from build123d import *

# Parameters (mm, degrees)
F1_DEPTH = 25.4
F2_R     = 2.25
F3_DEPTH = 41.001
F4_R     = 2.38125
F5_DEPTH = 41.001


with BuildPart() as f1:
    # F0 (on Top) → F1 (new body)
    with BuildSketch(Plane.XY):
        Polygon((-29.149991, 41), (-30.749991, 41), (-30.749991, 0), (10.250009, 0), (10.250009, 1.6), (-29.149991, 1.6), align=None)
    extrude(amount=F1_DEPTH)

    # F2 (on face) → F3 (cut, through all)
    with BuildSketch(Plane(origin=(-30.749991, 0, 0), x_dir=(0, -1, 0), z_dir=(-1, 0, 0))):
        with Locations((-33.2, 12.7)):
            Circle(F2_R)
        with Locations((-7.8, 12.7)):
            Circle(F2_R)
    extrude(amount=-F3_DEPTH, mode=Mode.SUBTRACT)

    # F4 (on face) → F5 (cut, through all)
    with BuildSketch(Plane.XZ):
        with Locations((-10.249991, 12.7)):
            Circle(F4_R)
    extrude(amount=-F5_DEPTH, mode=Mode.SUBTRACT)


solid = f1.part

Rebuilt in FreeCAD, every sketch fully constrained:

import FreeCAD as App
import Part
import Sketcher
from FreeCAD import Vector
Q = App.Units.Quantity

doc = App.newDocument("Part")
body = doc.addObject("PartDesign::Body", "Body")

# Sketch on XY plane
sketch1 = body.newObject("Sketcher::SketchObject", "Sketch")
sketch1.AttachmentSupport = (doc.getObject("XY_Plane"), [""])
sketch1.MapMode = "FlatFace"
sketch1.addGeometry([
    Part.LineSegment(Vector(-29.149991, 41, 0), Vector(-30.749991, 41, 0)),  # 0
    Part.LineSegment(Vector(-30.749991, 41, 0), Vector(-30.749991, 0, 0)),  # 1
    Part.LineSegment(Vector(-30.749991, 0, 0), Vector(10.250009, 0, 0)),  # 2
    Part.LineSegment(Vector(10.250009, 0, 0), Vector(10.250009, 1.6, 0)),  # 3
    Part.LineSegment(Vector(10.250009, 1.6, 0), Vector(-29.149991, 1.6, 0)),  # 4
    Part.LineSegment(Vector(-29.149991, 1.6, 0), Vector(-29.149991, 41, 0)),  # 5
], False)
sketch1.addConstraint([
    Sketcher.Constraint("Coincident", 0, 2, 1, 1),
    Sketcher.Constraint("Coincident", 1, 2, 2, 1),
    Sketcher.Constraint("Coincident", 2, 2, 3, 1),
    Sketcher.Constraint("Coincident", 3, 2, 4, 1),
    Sketcher.Constraint("Coincident", 4, 2, 5, 1),
    Sketcher.Constraint("Coincident", 5, 2, 0, 1),
    Sketcher.Constraint("Horizontal", 0),
    Sketcher.Constraint("Vertical", 1),
    Sketcher.Constraint("Horizontal", 2),
    Sketcher.Constraint("Vertical", 3),
    Sketcher.Constraint("Horizontal", 4),
    Sketcher.Constraint("Vertical", 5),
    Sketcher.Constraint("PointOnObject", 1, 2, -1),
    Sketcher.Constraint("Equal", 2, 1),
    Sketcher.Constraint("Equal", 0, 3),
    Sketcher.Constraint("DistanceX", 2, 1, 2, 2, Q("41 mm")),
    Sketcher.Constraint("DistanceX", 0, 2, 0, 1, Q("1.6 mm")),
    Sketcher.Constraint("DistanceX", 0, 2, -1, 1, Q("30.749991 mm")),
])
pad1 = body.newObject("PartDesign::Pad", "Pad")
pad1.Profile = sketch1
pad1.Length = 25.4

# Sketch on YZ plane
sketch2 = body.newObject("Sketcher::SketchObject", "Sketch001")
sketch2.AttachmentSupport = (doc.getObject("YZ_Plane"), [""])
sketch2.MapMode = "FlatFace"
sketch2.AttachmentOffset = App.Placement(Vector(0, 0, -30.749991), App.Rotation())
sketch2.addGeometry([
    Part.Circle(Vector(33.2, 12.7, 0), Vector(0, 0, 1), 2.25),
    Part.Circle(Vector(7.8, 12.7, 0), Vector(0, 0, 1), 2.25),
], False)
sketch2.addConstraint([
    Sketcher.Constraint("Equal", 0, 1),
    Sketcher.Constraint("Horizontal", 0, 3, 1, 3),
    Sketcher.Constraint("Diameter", 0, Q("4.5 mm")),
    Sketcher.Constraint("DistanceX", -1, 1, 0, 3, Q("33.2 mm")),
    Sketcher.Constraint("DistanceY", -1, 1, 0, 3, Q("12.7 mm")),
    Sketcher.Constraint("DistanceX", -1, 1, 1, 3, Q("7.8 mm")),
])
pocket1 = body.newObject("PartDesign::Pocket", "Pocket")
pocket1.Profile = sketch2
pocket1.Type = "ThroughAll"
pocket1.Reversed = True

# Sketch on XZ plane
sketch3 = body.newObject("Sketcher::SketchObject", "Sketch002")
sketch3.AttachmentSupport = (doc.getObject("XZ_Plane"), [""])
sketch3.MapMode = "FlatFace"
sketch3.addGeometry(Part.Circle(Vector(-10.249991, 12.7, 0), Vector(0, 0, 1), 2.38125), False)
sketch3.addConstraint([
    Sketcher.Constraint("Diameter", 0, Q("4.7625 mm")),
    Sketcher.Constraint("DistanceY", -1, 1, 0, 3, Q("12.7 mm")),
    Sketcher.Constraint("DistanceX", 0, 3, -1, 1, Q("10.249991 mm")),
])
pocket2 = body.newObject("PartDesign::Pocket", "Pocket001")
pocket2.Profile = sketch3
pocket2.Type = "ThroughAll"

doc.recompute()
